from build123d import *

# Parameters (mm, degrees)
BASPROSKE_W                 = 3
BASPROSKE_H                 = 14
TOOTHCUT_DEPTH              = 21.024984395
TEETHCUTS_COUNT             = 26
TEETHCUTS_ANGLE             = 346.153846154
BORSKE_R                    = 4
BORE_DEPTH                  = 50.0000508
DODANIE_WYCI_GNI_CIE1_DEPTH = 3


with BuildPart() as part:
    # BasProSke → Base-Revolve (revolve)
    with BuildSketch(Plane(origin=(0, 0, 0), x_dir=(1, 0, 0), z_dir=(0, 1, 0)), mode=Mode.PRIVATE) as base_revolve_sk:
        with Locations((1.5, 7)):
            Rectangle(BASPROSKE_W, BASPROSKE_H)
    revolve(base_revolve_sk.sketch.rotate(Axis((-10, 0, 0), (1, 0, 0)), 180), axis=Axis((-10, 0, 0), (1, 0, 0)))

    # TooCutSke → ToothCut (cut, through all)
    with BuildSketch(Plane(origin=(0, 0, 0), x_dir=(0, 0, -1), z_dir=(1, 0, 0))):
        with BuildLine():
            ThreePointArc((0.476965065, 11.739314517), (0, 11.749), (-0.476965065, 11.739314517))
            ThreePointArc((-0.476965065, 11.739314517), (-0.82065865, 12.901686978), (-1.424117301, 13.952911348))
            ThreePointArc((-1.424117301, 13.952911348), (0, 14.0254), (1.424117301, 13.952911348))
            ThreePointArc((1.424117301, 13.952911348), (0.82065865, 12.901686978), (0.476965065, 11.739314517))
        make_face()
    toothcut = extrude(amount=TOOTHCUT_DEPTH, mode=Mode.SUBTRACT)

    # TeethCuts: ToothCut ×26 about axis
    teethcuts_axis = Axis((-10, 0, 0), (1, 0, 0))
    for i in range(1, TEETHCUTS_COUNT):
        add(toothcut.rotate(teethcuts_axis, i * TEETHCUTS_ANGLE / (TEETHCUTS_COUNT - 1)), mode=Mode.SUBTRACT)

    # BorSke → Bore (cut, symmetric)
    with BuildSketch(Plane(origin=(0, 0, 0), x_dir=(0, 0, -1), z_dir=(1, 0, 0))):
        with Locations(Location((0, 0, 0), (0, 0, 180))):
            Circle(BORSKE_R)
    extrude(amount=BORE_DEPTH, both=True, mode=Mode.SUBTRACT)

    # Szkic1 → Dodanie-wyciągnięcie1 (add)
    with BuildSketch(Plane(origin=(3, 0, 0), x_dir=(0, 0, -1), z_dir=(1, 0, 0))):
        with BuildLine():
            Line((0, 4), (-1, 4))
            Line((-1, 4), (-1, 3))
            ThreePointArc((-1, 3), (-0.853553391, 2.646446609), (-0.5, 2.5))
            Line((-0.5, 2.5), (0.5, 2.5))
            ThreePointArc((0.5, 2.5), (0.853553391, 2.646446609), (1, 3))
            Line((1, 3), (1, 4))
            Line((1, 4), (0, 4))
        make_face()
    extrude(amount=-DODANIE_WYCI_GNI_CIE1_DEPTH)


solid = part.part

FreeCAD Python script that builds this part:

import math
import FreeCAD as App
import Part
import Sketcher
Q = App.Units.Quantity


def add_polygon(sketch, points):
    """Adds a closed chain of lines whose ends are joined by coincident constraints."""
    first, n = sketch.GeometryCount, len(points)
    for a, b in zip(points, points[1:] + points[:1]):
        sketch.addGeometry(Part.LineSegment(App.Vector(*a, 0), App.Vector(*b, 0)), False)
    for i in range(n):
        sketch.addConstraint(Sketcher.Constraint("Coincident", first + i, 2, first + (i + 1) % n, 1))

doc = App.newDocument("Part")
body = doc.addObject("PartDesign::Body", "Body")

sketch1 = doc.addObject("Sketcher::SketchObject", "Sketch")
body.addObject(sketch1)
sketch1.AttachmentSupport = (doc.XZ_Plane, [""])
sketch1.MapMode = "FlatFace"
add_polygon(sketch1, [(0, -14), (0, 0), (3, 0), (3, -14)])
sketch1.addConstraint(Sketcher.Constraint("Vertical", 0))
sketch1.addConstraint(Sketcher.Constraint("Horizontal", 1))
sketch1.addConstraint(Sketcher.Constraint("Vertical", 2))
sketch1.addConstraint(Sketcher.Constraint("Horizontal", 3))
sketch1.addConstraint(Sketcher.Constraint("Coincident", 0, 2, -1, 1))
sketch1.addConstraint(Sketcher.Constraint("DistanceX", 1, 1, 1, 2, Q("3 mm")))
sketch1.addConstraint(Sketcher.Constraint("DistanceY", 0, 1, 0, 2, Q("14 mm")))
revolution = doc.addObject("PartDesign::Revolution", "Revolution")
body.addObject(revolution)
revolution.Profile = sketch1
revolution.ReferenceAxis = (sketch1, ["H_Axis"])
revolution.Angle = 360

sketch2 = doc.addObject("Sketcher::SketchObject", "Sketch001")
body.addObject(sketch2)
sketch2.AttachmentSupport = (doc.YZ_Plane, [""])
sketch2.MapMode = "FlatFace"
sketch2.addGeometry(Part.ArcOfCircle(Part.Circle(App.Vector(0, 0, 0), App.Vector(0, 0, 1), 11.749), math.radians(-2.326632), math.radians(2.326632)), False)
sketch2.addGeometry(Part.ArcOfCircle(Part.Circle(App.Vector(10.856102, -5.60141, 0), App.Vector(0, 0, 1), 5.2), math.radians(53.448851), math.radians(80.220991)), False)
sketch2.addGeometry(Part.ArcOfCircle(Part.Circle(App.Vector(0, 0, 0), App.Vector(0, 0, 1), 14.0254), math.radians(-5.827768), math.radians(5.827768)), False)
sketch2.addGeometry(Part.ArcOfCircle(Part.Circle(App.Vector(10.856102, 5.60141, 0), App.Vector(0, 0, 1), 5.2), math.radians(-80.220991), math.radians(-53.448851)), False)
sketch2.addConstraint(Sketcher.Constraint("Coincident", 0, 1, 1, 2))
sketch2.addConstraint(Sketcher.Constraint("Coincident", 1, 1, 2, 1))
sketch2.addConstraint(Sketcher.Constraint("Coincident", 2, 2, 3, 2))
sketch2.addConstraint(Sketcher.Constraint("Coincident", 3, 1, 0, 2))
sketch2.addConstraint(Sketcher.Constraint("Coincident", 0, 3, -1, 1))
sketch2.addConstraint(Sketcher.Constraint("Coincident", 2, 3, -1, 1))
sketch2.addConstraint(Sketcher.Constraint("Equal", 1, 3))
sketch2.addConstraint(Sketcher.Constraint("Symmetric", 1, 3, 3, 3, -1))
sketch2.addConstraint(Sketcher.Constraint("Radius", 1, Q("5.2 mm")))
sketch2.addConstraint(Sketcher.Constraint("Radius", 0, Q("11.749 mm")))
sketch2.addConstraint(Sketcher.Constraint("Radius", 2, Q("14.0254 mm")))
sketch2.addConstraint(Sketcher.Constraint("DistanceY", 1, 3, -1, 1, Q("5.60141 mm")))
sketch2.addConstraint(Sketcher.Constraint("DistanceX", -1, 1, 1, 1, Q("13.952911 mm")))
pocket1 = doc.addObject("PartDesign::Pocket", "Pocket")
body.addObject(pocket1)
pocket1.Profile = sketch2
pocket1.Type = "ThroughAll"
pocket1.Reversed = True
doc.recompute()

polarpattern = doc.addObject("PartDesign::PolarPattern", "PolarPattern")
body.addObject(polarpattern)
polarpattern.Originals = [pocket1]
polarpattern.Axis = (doc.X_Axis, [""])
polarpattern.Angle = 360
polarpattern.Occurrences = 26
body.Tip = polarpattern

sketch3 = doc.addObject("Sketcher::SketchObject", "Sketch002")
body.addObject(sketch3)
sketch3.AttachmentSupport = (doc.YZ_Plane, [""])
sketch3.MapMode = "FlatFace"
sketch3.addGeometry(Part.Circle(App.Vector(0, 0, 0), App.Vector(0, 0, 1), 4), False)
sketch3.addConstraint(Sketcher.Constraint("Coincident", 0, 3, -1, 1))
sketch3.addConstraint(Sketcher.Constraint("Diameter", 0, Q("8 mm")))
pocket2 = doc.addObject("PartDesign::Pocket", "Pocket001")
body.addObject(pocket2)
pocket2.Profile = sketch3
pocket2.Length = 100.000102
pocket2.Midplane = True

sketch4 = doc.addObject("Sketcher::SketchObject", "Sketch003")
body.addObject(sketch4)
sketch4.AttachmentSupport = (doc.YZ_Plane, [""])
sketch4.MapMode = "FlatFace"
sketch4.AttachmentOffset = App.Placement(App.Vector(0, 0, 3), App.Rotation())
sketch4.addGeometry(Part.LineSegment(App.Vector(4, 1, 0), App.Vector(3, 1, 0)), False)
sketch4.addGeometry(Part.ArcOfCircle(Part.Circle(App.Vector(3, 0.5, 0), App.Vector(0, 0, 1), 0.5), math.radians(90), math.radians(180)), False)
sketch4.addGeometry(Part.LineSegment(App.Vector(2.5, 0.5, 0), App.Vector(2.5, -0.5, 0)), False)
sketch4.addGeometry(Part.ArcOfCircle(Part.Circle(App.Vector(3, -0.5, 0), App.Vector(0, 0, 1), 0.5), math.radians(180), math.radians(270)), False)
sketch4.addGeometry(Part.LineSegment(App.Vector(3, -1, 0), App.Vector(4, -1, 0)), False)
sketch4.addGeometry(Part.LineSegment(App.Vector(4, -1, 0), App.Vector(4, 1, 0)), False)
sketch4.addConstraint(Sketcher.Constraint("Tangent", 0, 2, 1, 1))
sketch4.addConstraint(Sketcher.Constraint("Tangent", 1, 2, 2, 1))
sketch4.addConstraint(Sketcher.Constraint("Tangent", 2, 2, 3, 1))
sketch4.addConstraint(Sketcher.Constraint("Tangent", 3, 2, 4, 1))
sketch4.addConstraint(Sketcher.Constraint("Coincident", 4, 2, 5, 1))
sketch4.addConstraint(Sketcher.Constraint("Coincident", 5, 2, 0, 1))
sketch4.addConstraint(Sketcher.Constraint("Horizontal", 0))
sketch4.addConstraint(Sketcher.Constraint("Vertical", 2))
sketch4.addConstraint(Sketcher.Constraint("Horizontal", 4))
sketch4.addConstraint(Sketcher.Constraint("Vertical", 5))
sketch4.addConstraint(Sketcher.Constraint("Equal", 1, 3))
sketch4.addConstraint(Sketcher.Constraint("Equal", 4, 2))
sketch4.addConstraint(Sketcher.Constraint("Radius", 1, Q("0.5 mm")))
sketch4.addConstraint(Sketcher.Constraint("DistanceX", 0, 2, 0, 1, Q("1 mm")))
sketch4.addConstraint(Sketcher.Constraint("DistanceX", -1, 1, 1, 3, Q("3 mm")))
sketch4.addConstraint(Sketcher.Constraint("DistanceY", -1, 1, 0, 2, Q("1 mm")))
pad1 = doc.addObject("PartDesign::Pad", "Pad")
body.addObject(pad1)
pad1.Profile = sketch4
pad1.Length = 3
pad1.Reversed = True

doc.recompute()
